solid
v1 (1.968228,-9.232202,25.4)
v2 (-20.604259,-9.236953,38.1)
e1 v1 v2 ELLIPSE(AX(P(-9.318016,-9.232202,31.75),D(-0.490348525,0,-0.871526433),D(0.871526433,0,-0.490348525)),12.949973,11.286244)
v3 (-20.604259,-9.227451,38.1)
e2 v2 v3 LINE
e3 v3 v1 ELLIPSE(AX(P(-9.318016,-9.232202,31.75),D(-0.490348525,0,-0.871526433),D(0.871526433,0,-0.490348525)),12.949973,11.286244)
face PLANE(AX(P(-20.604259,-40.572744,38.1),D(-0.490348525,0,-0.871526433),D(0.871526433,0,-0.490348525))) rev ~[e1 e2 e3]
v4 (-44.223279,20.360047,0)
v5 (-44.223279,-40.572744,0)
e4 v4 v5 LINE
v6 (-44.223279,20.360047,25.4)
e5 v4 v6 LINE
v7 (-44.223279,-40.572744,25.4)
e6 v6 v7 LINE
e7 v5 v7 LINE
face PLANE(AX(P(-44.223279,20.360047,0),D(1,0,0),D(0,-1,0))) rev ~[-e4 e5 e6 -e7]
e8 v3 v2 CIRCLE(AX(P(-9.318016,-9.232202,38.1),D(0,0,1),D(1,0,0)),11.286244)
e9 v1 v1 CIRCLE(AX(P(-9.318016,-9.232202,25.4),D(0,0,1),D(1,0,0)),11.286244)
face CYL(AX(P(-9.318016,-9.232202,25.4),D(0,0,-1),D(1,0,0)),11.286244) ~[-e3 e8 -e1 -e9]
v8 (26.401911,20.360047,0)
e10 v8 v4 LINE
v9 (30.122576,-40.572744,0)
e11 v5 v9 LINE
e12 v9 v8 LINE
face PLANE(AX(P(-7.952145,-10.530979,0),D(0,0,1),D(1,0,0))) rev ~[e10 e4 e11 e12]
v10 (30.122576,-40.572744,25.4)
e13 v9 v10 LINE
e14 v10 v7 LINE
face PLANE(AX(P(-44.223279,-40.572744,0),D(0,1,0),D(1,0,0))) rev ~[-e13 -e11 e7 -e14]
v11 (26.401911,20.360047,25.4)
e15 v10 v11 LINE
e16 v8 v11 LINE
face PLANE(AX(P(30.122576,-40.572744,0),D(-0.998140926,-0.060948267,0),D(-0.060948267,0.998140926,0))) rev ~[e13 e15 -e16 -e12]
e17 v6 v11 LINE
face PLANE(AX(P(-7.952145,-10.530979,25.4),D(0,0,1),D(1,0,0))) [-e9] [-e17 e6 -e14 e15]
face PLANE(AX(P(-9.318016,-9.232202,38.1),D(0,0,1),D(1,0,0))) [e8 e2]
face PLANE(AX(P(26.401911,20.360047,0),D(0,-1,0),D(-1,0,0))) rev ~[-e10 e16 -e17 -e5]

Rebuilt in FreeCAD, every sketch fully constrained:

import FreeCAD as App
import Part
import Sketcher
from FreeCAD import Vector
Q = App.Units.Quantity


def add_polygon(sketch, points):
    """Adds a closed chain of lines whose ends are joined by coincident constraints."""
    first, n = sketch.GeometryCount, len(points)
    for a, b in zip(points, points[1:] + points[:1]):
        sketch.addGeometry(Part.LineSegment(App.Vector(*a, 0), App.Vector(*b, 0)), False)
    for i in range(n):
        sketch.addConstraint(Sketcher.Constraint("Coincident", first + i, 2, first + (i + 1) % n, 1))

doc = App.newDocument("Part")
body = doc.addObject("PartDesign::Body", "Body")

sketch1 = body.newObject("Sketcher::SketchObject", "Sketch")
sketch1.AttachmentSupport = (doc.getObject("XY_Plane"), [""])
sketch1.MapMode = "FlatFace"
add_polygon(sketch1, [(-44, 20), (-44, -41), (30, -41), (26, 20)])
sketch1.addConstraint([
    Sketcher.Constraint("Vertical", 0),
    Sketcher.Constraint("Horizontal", 1),
    Sketcher.Constraint("Horizontal", 3),
    Sketcher.Constraint("DistanceX", 3, 2, 3, 1, 70.62519),
    Sketcher.Constraint("DistanceY", 0, 2, 0, 1, 60.932791),
    Sketcher.Constraint("Distance", 2, 61.046281),
    Sketcher.Constraint("DistanceX", 0, 2, -1, 1, 44.223279),
    Sketcher.Constraint("DistanceY", 0, 2, -1, 1, 40.572744),
])
pad1 = body.newObject("PartDesign::Pad", "Pad")
pad1.Profile = sketch1
pad1.Length = Q("1 in")

sketch2 = body.newObject("Sketcher::SketchObject", "Sketch001")
sketch2.AttachmentSupport = (doc.getObject("XY_Plane"), [""])
sketch2.MapMode = "FlatFace"
sketch2.AttachmentOffset = App.Placement(Vector(0, 0, 1 * 25.4), App.Rotation())
sketch2.addGeometry(Part.Circle(Vector(-9, -9, 0), Vector(0, 0, 1), 11), False)
sketch2.addConstraint([
    Sketcher.Constraint("Diameter", 0, 22.572488),
    Sketcher.Constraint("DistanceY", 0, 3, -1, 1, 9.232202),
    Sketcher.Constraint("DistanceX", 0, 3, -1, 1, 9.318016),
])
pad2 = body.newObject("PartDesign::Pad", "Pad001")
pad2.Profile = sketch2
pad2.Length = Q("0.5 in")

sketch3 = body.newObject("Sketcher::SketchObject", "Sketch002")
sketch3.AttachmentSupport = (doc.getObject("XZ_Plane"), [""])
sketch3.MapMode = "FlatFace"
sketch3.AttachmentOffset = App.Placement(Vector(0, 0, 40.572744), App.Rotation())
add_polygon(sketch3, [(2, 38), (-21, 38), (2, 25)])
sketch3.addConstraint([
    Sketcher.Constraint("Horizontal", 0),
    Sketcher.Constraint("Vertical", 2),
    Sketcher.Constraint("DistanceY", 2, 1, 2, 2, Q("0.5 in")),
    Sketcher.Constraint("DistanceY", -1, 1, 1, 2, Q("1 in")),
    Sketcher.Constraint("DistanceX", 0, 2, 0, 1, 22.572487),
    Sketcher.Constraint("DistanceX", 0, 2, -1, 1, 20.604259),
])
pocket1 = body.newObject("PartDesign::Pocket", "Pocket")
pocket1.Profile = sketch3
pocket1.Type = "ThroughAll"

doc.recompute()
